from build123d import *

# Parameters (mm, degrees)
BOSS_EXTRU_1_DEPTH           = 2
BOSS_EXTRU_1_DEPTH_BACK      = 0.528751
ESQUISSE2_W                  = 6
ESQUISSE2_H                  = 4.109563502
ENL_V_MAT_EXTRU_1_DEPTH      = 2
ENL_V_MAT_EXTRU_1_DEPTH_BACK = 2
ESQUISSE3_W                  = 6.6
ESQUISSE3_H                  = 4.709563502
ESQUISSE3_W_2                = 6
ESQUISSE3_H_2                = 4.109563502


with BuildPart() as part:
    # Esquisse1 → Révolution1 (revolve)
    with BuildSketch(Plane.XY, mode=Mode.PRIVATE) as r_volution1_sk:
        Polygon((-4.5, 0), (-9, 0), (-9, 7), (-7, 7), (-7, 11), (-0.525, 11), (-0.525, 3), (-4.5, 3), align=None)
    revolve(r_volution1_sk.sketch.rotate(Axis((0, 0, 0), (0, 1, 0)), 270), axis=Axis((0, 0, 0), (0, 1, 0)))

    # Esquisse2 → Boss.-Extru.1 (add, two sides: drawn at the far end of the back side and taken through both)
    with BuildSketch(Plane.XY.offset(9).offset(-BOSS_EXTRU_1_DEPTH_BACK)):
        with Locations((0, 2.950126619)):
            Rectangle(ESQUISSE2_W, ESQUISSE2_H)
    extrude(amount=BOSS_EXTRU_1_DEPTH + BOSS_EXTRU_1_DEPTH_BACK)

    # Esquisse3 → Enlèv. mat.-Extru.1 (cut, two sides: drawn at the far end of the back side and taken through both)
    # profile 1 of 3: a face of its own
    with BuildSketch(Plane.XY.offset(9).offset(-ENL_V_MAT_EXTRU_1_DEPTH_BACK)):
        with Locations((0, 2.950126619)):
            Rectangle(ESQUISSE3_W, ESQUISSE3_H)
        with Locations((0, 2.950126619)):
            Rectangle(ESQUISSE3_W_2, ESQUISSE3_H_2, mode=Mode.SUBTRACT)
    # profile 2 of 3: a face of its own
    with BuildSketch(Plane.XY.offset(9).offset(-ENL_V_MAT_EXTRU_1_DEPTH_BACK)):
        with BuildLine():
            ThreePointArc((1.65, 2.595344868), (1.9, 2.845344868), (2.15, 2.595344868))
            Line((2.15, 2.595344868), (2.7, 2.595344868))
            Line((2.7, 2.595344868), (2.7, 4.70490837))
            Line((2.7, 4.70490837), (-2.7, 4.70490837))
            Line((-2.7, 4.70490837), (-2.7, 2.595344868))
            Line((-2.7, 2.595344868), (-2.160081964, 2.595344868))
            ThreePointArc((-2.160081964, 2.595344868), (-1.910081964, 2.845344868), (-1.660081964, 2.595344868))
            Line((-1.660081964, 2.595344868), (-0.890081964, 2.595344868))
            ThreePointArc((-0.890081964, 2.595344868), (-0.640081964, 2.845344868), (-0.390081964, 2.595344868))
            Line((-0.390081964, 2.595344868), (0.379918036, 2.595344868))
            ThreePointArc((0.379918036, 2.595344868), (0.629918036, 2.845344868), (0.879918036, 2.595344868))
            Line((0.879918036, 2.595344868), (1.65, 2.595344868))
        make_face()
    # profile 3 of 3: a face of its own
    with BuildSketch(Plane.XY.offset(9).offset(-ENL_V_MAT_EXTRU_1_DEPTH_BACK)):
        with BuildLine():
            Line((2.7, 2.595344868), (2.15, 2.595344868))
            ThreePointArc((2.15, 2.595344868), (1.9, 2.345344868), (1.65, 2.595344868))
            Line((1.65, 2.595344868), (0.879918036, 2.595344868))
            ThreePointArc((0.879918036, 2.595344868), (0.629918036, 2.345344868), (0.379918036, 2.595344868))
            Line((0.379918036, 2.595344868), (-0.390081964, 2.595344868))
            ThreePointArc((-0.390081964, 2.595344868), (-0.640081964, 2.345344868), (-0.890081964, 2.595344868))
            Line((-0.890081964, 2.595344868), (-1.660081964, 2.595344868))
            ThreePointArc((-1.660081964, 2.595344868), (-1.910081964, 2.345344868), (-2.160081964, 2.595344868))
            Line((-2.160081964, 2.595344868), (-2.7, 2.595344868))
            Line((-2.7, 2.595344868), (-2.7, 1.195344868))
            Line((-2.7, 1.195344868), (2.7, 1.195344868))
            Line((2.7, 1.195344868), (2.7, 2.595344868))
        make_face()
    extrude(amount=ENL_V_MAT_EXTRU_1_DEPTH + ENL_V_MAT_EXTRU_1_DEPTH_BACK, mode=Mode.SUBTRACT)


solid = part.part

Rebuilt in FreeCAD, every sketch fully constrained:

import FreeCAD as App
import Part
import Sketcher

V = App.Vector
Q = App.Units.Quantity


def add_polygon(sketch, points):
    """Adds a closed chain of lines whose ends are joined by coincident constraints."""
    first, n = sketch.GeometryCount, len(points)
    for a, b in zip(points, points[1:] + points[:1]):
        sketch.addGeometry(Part.LineSegment(App.Vector(*a, 0), App.Vector(*b, 0)), False)
    for i in range(n):
        sketch.addConstraint(Sketcher.Constraint("Coincident", first + i, 2, first + (i + 1) % n, 1))

doc = App.newDocument("Part")
body = doc.addObject("PartDesign::Body", "Body")

sketch1 = doc.addObject("Sketcher::SketchObject", "Sketch")
body.addObject(sketch1)
sketch1.AttachmentSupport = (doc.XY_Plane, [""])
sketch1.MapMode = "FlatFace"
add_polygon(sketch1, [(-9, 0), (-4.5, 0), (-4.5, 3), (-0.525, 3), (-0.525, 11), (-7, 11), (-7, 7), (-9, 7)])
sketch1.addConstraint([
    Sketcher.Constraint("Horizontal", 0),
    Sketcher.Constraint("Vertical", 1),
    Sketcher.Constraint("Horizontal", 2),
    Sketcher.Constraint("Vertical", 3),
    Sketcher.Constraint("Horizontal", 4),
    Sketcher.Constraint("Vertical", 5),
    Sketcher.Constraint("Horizontal", 6),
    Sketcher.Constraint("Vertical", 7),
    Sketcher.Constraint("PointOnObject", 0, 2, -1),
    Sketcher.Constraint("DistanceX", 6, 2, 6, 1, Q("2 mm")),
    Sketcher.Constraint("DistanceY", 1, 1, 1, 2, Q("3 mm")),
    Sketcher.Constraint("DistanceY", 3, 1, 3, 2, Q("8 mm")),
    Sketcher.Constraint("DistanceY", 5, 2, 5, 1, Q("4 mm")),
    Sketcher.Constraint("DistanceX", 0, 1, 0, 2, Q("4.5 mm")),
    Sketcher.Constraint("DistanceX", 4, 2, -1, 1, Q("7 mm")),
    Sketcher.Constraint("DistanceX", 2, 1, 2, 2, Q("3.975 mm")),
])
revolution = doc.addObject("PartDesign::Revolution", "Revolution")
body.addObject(revolution)
revolution.Profile = sketch1
revolution.ReferenceAxis = (sketch1, ["V_Axis"])
revolution.Angle = 360

sketch2 = doc.addObject("Sketcher::SketchObject", "Sketch001")
body.addObject(sketch2)
sketch2.AttachmentSupport = (doc.XY_Plane, [""])
sketch2.MapMode = "FlatFace"
sketch2.AttachmentOffset = App.Placement(V(0, 0, 9), App.Rotation())
add_polygon(sketch2, [(-3, 5.004908), (-3, 0.895345), (3, 0.895345), (3, 5.004908)])
sketch2.addConstraint([
    Sketcher.Constraint("Vertical", 0),
    Sketcher.Constraint("Horizontal", 1),
    Sketcher.Constraint("Vertical", 2),
    Sketcher.Constraint("Horizontal", 3),
    Sketcher.Constraint("DistanceX", 1, 1, 1, 2, Q("6 mm")),
    Sketcher.Constraint("DistanceX", 0, 2, -1, 1, Q("3 mm")),
    Sketcher.Constraint("DistanceY", 0, 2, 0, 1, Q("4.109564 mm")),
    Sketcher.Constraint("DistanceY", -1, 1, 2, 2, Q("5.004908 mm")),
])
pad1 = doc.addObject("PartDesign::Pad", "Pad")
body.addObject(pad1)
pad1.Profile = sketch2
pad1.Type = "TwoLengths"
pad1.Length = 2
pad1.Length2 = 0.528751

sketch3 = doc.addObject("Sketcher::SketchObject", "Sketch002")
body.addObject(sketch3)
sketch3.AttachmentSupport = (doc.XY_Plane, [""])
sketch3.MapMode = "FlatFace"
sketch3.AttachmentOffset = App.Placement(V(0, 0, 9), App.Rotation())
add_polygon(sketch3, [(-3.3, 5.304908), (-3.3, 0.595345), (3.3, 0.595345), (3.3, 5.304908)])
add_polygon(sketch3, [(3, 0.895345), (-3, 0.895345), (-3, 5.004908), (3, 5.004908)])
add_polygon(sketch3, [(2.7, 4.704908), (-2.7, 4.704908), (-2.7, 1.195345), (2.7, 1.195345)])
sketch3.addGeometry(Part.Circle(V(1.9, 2.595345, 0), V(0, 0, 1), 0.25), False)
sketch3.addGeometry(Part.Circle(V(-1.910082, 2.595345, 0), V(0, 0, 1), 0.25), False)
sketch3.addGeometry(Part.Circle(V(-0.640082, 2.595345, 0), V(0, 0, 1), 0.25), False)
sketch3.addGeometry(Part.Circle(V(0.629918, 2.595345, 0), V(0, 0, 1), 0.25), False)
sketch3.addConstraint([
    Sketcher.Constraint("Vertical", 0),
    Sketcher.Constraint("Horizontal", 1),
    Sketcher.Constraint("Vertical", 2),
    Sketcher.Constraint("Horizontal", 3),
    Sketcher.Constraint("Horizontal", 4),
    Sketcher.Constraint("Vertical", 5),
    Sketcher.Constraint("Horizontal", 6),
    Sketcher.Constraint("Vertical", 7),
    Sketcher.Constraint("Horizontal", 8),
    Sketcher.Constraint("Vertical", 9),
    Sketcher.Constraint("Horizontal", 10),
    Sketcher.Constraint("Vertical", 11),
    Sketcher.Constraint("Equal", 12, 13),
    Sketcher.Constraint("Equal", 13, 14),
    Sketcher.Constraint("Equal", 14, 15),
    Sketcher.Constraint("Horizontal", 12, 3, 13, 3),
    Sketcher.Constraint("Horizontal", 13, 3, 14, 3),
    Sketcher.Constraint("Horizontal", 14, 3, 15, 3),
    Sketcher.Constraint("Diameter", 12, Q("0.5 mm")),
    Sketcher.Constraint("DistanceX", 4, 2, 4, 1, Q("6 mm")),
    Sketcher.Constraint("DistanceX", 1, 1, 1, 2, Q("6.6 mm")),
    Sketcher.Constraint("DistanceX", 8, 2, 8, 1, Q("5.4 mm")),
    Sketcher.Constraint("DistanceX", 4, 2, -1, 1, Q("3 mm")),
    Sketcher.Constraint("DistanceY", 0, 2, 13, 3, Q("2 mm")),
    Sketcher.Constraint("DistanceX", -1, 1, 12, 3, Q("1.9 mm")),
    Sketcher.Constraint("DistanceX", 0, 2, -1, 1, Q("3.3 mm")),
    Sketcher.Constraint("DistanceX", 8, 2, -1, 1, Q("2.7 mm")),
    Sketcher.Constraint("DistanceY", 0, 2, 4, 2, Q("0.3 mm")),
    Sketcher.Constraint("DistanceY", 5, 2, 3, 2, Q("0.3 mm")),
    Sketcher.Constraint("DistanceY", 8, 2, 5, 2, Q("0.3 mm")),
    Sketcher.Constraint("DistanceY", 4, 2, 9, 2, Q("0.3 mm")),
    Sketcher.Constraint("DistanceX", 13, 3, 14, 3, Q("1.27 mm")),
    Sketcher.Constraint("DistanceX", 14, 3, 15, 3, Q("1.27 mm")),
    Sketcher.Constraint("DistanceY", 0, 2, 0, 1, Q("4.709564 mm")),
    Sketcher.Constraint("DistanceX", 13, 3, -1, 1, Q("1.910082 mm")),
    Sketcher.Constraint("DistanceY", -1, 1, 2, 2, Q("5.304908 mm")),
])
pocket1 = doc.addObject("PartDesign::Pocket", "Pocket")
body.addObject(pocket1)
pocket1.Profile = sketch3
pocket1.Type = "TwoLengths"
pocket1.Length = 2
pocket1.Length2 = 2
pocket1.Reversed = True

doc.recompute()
